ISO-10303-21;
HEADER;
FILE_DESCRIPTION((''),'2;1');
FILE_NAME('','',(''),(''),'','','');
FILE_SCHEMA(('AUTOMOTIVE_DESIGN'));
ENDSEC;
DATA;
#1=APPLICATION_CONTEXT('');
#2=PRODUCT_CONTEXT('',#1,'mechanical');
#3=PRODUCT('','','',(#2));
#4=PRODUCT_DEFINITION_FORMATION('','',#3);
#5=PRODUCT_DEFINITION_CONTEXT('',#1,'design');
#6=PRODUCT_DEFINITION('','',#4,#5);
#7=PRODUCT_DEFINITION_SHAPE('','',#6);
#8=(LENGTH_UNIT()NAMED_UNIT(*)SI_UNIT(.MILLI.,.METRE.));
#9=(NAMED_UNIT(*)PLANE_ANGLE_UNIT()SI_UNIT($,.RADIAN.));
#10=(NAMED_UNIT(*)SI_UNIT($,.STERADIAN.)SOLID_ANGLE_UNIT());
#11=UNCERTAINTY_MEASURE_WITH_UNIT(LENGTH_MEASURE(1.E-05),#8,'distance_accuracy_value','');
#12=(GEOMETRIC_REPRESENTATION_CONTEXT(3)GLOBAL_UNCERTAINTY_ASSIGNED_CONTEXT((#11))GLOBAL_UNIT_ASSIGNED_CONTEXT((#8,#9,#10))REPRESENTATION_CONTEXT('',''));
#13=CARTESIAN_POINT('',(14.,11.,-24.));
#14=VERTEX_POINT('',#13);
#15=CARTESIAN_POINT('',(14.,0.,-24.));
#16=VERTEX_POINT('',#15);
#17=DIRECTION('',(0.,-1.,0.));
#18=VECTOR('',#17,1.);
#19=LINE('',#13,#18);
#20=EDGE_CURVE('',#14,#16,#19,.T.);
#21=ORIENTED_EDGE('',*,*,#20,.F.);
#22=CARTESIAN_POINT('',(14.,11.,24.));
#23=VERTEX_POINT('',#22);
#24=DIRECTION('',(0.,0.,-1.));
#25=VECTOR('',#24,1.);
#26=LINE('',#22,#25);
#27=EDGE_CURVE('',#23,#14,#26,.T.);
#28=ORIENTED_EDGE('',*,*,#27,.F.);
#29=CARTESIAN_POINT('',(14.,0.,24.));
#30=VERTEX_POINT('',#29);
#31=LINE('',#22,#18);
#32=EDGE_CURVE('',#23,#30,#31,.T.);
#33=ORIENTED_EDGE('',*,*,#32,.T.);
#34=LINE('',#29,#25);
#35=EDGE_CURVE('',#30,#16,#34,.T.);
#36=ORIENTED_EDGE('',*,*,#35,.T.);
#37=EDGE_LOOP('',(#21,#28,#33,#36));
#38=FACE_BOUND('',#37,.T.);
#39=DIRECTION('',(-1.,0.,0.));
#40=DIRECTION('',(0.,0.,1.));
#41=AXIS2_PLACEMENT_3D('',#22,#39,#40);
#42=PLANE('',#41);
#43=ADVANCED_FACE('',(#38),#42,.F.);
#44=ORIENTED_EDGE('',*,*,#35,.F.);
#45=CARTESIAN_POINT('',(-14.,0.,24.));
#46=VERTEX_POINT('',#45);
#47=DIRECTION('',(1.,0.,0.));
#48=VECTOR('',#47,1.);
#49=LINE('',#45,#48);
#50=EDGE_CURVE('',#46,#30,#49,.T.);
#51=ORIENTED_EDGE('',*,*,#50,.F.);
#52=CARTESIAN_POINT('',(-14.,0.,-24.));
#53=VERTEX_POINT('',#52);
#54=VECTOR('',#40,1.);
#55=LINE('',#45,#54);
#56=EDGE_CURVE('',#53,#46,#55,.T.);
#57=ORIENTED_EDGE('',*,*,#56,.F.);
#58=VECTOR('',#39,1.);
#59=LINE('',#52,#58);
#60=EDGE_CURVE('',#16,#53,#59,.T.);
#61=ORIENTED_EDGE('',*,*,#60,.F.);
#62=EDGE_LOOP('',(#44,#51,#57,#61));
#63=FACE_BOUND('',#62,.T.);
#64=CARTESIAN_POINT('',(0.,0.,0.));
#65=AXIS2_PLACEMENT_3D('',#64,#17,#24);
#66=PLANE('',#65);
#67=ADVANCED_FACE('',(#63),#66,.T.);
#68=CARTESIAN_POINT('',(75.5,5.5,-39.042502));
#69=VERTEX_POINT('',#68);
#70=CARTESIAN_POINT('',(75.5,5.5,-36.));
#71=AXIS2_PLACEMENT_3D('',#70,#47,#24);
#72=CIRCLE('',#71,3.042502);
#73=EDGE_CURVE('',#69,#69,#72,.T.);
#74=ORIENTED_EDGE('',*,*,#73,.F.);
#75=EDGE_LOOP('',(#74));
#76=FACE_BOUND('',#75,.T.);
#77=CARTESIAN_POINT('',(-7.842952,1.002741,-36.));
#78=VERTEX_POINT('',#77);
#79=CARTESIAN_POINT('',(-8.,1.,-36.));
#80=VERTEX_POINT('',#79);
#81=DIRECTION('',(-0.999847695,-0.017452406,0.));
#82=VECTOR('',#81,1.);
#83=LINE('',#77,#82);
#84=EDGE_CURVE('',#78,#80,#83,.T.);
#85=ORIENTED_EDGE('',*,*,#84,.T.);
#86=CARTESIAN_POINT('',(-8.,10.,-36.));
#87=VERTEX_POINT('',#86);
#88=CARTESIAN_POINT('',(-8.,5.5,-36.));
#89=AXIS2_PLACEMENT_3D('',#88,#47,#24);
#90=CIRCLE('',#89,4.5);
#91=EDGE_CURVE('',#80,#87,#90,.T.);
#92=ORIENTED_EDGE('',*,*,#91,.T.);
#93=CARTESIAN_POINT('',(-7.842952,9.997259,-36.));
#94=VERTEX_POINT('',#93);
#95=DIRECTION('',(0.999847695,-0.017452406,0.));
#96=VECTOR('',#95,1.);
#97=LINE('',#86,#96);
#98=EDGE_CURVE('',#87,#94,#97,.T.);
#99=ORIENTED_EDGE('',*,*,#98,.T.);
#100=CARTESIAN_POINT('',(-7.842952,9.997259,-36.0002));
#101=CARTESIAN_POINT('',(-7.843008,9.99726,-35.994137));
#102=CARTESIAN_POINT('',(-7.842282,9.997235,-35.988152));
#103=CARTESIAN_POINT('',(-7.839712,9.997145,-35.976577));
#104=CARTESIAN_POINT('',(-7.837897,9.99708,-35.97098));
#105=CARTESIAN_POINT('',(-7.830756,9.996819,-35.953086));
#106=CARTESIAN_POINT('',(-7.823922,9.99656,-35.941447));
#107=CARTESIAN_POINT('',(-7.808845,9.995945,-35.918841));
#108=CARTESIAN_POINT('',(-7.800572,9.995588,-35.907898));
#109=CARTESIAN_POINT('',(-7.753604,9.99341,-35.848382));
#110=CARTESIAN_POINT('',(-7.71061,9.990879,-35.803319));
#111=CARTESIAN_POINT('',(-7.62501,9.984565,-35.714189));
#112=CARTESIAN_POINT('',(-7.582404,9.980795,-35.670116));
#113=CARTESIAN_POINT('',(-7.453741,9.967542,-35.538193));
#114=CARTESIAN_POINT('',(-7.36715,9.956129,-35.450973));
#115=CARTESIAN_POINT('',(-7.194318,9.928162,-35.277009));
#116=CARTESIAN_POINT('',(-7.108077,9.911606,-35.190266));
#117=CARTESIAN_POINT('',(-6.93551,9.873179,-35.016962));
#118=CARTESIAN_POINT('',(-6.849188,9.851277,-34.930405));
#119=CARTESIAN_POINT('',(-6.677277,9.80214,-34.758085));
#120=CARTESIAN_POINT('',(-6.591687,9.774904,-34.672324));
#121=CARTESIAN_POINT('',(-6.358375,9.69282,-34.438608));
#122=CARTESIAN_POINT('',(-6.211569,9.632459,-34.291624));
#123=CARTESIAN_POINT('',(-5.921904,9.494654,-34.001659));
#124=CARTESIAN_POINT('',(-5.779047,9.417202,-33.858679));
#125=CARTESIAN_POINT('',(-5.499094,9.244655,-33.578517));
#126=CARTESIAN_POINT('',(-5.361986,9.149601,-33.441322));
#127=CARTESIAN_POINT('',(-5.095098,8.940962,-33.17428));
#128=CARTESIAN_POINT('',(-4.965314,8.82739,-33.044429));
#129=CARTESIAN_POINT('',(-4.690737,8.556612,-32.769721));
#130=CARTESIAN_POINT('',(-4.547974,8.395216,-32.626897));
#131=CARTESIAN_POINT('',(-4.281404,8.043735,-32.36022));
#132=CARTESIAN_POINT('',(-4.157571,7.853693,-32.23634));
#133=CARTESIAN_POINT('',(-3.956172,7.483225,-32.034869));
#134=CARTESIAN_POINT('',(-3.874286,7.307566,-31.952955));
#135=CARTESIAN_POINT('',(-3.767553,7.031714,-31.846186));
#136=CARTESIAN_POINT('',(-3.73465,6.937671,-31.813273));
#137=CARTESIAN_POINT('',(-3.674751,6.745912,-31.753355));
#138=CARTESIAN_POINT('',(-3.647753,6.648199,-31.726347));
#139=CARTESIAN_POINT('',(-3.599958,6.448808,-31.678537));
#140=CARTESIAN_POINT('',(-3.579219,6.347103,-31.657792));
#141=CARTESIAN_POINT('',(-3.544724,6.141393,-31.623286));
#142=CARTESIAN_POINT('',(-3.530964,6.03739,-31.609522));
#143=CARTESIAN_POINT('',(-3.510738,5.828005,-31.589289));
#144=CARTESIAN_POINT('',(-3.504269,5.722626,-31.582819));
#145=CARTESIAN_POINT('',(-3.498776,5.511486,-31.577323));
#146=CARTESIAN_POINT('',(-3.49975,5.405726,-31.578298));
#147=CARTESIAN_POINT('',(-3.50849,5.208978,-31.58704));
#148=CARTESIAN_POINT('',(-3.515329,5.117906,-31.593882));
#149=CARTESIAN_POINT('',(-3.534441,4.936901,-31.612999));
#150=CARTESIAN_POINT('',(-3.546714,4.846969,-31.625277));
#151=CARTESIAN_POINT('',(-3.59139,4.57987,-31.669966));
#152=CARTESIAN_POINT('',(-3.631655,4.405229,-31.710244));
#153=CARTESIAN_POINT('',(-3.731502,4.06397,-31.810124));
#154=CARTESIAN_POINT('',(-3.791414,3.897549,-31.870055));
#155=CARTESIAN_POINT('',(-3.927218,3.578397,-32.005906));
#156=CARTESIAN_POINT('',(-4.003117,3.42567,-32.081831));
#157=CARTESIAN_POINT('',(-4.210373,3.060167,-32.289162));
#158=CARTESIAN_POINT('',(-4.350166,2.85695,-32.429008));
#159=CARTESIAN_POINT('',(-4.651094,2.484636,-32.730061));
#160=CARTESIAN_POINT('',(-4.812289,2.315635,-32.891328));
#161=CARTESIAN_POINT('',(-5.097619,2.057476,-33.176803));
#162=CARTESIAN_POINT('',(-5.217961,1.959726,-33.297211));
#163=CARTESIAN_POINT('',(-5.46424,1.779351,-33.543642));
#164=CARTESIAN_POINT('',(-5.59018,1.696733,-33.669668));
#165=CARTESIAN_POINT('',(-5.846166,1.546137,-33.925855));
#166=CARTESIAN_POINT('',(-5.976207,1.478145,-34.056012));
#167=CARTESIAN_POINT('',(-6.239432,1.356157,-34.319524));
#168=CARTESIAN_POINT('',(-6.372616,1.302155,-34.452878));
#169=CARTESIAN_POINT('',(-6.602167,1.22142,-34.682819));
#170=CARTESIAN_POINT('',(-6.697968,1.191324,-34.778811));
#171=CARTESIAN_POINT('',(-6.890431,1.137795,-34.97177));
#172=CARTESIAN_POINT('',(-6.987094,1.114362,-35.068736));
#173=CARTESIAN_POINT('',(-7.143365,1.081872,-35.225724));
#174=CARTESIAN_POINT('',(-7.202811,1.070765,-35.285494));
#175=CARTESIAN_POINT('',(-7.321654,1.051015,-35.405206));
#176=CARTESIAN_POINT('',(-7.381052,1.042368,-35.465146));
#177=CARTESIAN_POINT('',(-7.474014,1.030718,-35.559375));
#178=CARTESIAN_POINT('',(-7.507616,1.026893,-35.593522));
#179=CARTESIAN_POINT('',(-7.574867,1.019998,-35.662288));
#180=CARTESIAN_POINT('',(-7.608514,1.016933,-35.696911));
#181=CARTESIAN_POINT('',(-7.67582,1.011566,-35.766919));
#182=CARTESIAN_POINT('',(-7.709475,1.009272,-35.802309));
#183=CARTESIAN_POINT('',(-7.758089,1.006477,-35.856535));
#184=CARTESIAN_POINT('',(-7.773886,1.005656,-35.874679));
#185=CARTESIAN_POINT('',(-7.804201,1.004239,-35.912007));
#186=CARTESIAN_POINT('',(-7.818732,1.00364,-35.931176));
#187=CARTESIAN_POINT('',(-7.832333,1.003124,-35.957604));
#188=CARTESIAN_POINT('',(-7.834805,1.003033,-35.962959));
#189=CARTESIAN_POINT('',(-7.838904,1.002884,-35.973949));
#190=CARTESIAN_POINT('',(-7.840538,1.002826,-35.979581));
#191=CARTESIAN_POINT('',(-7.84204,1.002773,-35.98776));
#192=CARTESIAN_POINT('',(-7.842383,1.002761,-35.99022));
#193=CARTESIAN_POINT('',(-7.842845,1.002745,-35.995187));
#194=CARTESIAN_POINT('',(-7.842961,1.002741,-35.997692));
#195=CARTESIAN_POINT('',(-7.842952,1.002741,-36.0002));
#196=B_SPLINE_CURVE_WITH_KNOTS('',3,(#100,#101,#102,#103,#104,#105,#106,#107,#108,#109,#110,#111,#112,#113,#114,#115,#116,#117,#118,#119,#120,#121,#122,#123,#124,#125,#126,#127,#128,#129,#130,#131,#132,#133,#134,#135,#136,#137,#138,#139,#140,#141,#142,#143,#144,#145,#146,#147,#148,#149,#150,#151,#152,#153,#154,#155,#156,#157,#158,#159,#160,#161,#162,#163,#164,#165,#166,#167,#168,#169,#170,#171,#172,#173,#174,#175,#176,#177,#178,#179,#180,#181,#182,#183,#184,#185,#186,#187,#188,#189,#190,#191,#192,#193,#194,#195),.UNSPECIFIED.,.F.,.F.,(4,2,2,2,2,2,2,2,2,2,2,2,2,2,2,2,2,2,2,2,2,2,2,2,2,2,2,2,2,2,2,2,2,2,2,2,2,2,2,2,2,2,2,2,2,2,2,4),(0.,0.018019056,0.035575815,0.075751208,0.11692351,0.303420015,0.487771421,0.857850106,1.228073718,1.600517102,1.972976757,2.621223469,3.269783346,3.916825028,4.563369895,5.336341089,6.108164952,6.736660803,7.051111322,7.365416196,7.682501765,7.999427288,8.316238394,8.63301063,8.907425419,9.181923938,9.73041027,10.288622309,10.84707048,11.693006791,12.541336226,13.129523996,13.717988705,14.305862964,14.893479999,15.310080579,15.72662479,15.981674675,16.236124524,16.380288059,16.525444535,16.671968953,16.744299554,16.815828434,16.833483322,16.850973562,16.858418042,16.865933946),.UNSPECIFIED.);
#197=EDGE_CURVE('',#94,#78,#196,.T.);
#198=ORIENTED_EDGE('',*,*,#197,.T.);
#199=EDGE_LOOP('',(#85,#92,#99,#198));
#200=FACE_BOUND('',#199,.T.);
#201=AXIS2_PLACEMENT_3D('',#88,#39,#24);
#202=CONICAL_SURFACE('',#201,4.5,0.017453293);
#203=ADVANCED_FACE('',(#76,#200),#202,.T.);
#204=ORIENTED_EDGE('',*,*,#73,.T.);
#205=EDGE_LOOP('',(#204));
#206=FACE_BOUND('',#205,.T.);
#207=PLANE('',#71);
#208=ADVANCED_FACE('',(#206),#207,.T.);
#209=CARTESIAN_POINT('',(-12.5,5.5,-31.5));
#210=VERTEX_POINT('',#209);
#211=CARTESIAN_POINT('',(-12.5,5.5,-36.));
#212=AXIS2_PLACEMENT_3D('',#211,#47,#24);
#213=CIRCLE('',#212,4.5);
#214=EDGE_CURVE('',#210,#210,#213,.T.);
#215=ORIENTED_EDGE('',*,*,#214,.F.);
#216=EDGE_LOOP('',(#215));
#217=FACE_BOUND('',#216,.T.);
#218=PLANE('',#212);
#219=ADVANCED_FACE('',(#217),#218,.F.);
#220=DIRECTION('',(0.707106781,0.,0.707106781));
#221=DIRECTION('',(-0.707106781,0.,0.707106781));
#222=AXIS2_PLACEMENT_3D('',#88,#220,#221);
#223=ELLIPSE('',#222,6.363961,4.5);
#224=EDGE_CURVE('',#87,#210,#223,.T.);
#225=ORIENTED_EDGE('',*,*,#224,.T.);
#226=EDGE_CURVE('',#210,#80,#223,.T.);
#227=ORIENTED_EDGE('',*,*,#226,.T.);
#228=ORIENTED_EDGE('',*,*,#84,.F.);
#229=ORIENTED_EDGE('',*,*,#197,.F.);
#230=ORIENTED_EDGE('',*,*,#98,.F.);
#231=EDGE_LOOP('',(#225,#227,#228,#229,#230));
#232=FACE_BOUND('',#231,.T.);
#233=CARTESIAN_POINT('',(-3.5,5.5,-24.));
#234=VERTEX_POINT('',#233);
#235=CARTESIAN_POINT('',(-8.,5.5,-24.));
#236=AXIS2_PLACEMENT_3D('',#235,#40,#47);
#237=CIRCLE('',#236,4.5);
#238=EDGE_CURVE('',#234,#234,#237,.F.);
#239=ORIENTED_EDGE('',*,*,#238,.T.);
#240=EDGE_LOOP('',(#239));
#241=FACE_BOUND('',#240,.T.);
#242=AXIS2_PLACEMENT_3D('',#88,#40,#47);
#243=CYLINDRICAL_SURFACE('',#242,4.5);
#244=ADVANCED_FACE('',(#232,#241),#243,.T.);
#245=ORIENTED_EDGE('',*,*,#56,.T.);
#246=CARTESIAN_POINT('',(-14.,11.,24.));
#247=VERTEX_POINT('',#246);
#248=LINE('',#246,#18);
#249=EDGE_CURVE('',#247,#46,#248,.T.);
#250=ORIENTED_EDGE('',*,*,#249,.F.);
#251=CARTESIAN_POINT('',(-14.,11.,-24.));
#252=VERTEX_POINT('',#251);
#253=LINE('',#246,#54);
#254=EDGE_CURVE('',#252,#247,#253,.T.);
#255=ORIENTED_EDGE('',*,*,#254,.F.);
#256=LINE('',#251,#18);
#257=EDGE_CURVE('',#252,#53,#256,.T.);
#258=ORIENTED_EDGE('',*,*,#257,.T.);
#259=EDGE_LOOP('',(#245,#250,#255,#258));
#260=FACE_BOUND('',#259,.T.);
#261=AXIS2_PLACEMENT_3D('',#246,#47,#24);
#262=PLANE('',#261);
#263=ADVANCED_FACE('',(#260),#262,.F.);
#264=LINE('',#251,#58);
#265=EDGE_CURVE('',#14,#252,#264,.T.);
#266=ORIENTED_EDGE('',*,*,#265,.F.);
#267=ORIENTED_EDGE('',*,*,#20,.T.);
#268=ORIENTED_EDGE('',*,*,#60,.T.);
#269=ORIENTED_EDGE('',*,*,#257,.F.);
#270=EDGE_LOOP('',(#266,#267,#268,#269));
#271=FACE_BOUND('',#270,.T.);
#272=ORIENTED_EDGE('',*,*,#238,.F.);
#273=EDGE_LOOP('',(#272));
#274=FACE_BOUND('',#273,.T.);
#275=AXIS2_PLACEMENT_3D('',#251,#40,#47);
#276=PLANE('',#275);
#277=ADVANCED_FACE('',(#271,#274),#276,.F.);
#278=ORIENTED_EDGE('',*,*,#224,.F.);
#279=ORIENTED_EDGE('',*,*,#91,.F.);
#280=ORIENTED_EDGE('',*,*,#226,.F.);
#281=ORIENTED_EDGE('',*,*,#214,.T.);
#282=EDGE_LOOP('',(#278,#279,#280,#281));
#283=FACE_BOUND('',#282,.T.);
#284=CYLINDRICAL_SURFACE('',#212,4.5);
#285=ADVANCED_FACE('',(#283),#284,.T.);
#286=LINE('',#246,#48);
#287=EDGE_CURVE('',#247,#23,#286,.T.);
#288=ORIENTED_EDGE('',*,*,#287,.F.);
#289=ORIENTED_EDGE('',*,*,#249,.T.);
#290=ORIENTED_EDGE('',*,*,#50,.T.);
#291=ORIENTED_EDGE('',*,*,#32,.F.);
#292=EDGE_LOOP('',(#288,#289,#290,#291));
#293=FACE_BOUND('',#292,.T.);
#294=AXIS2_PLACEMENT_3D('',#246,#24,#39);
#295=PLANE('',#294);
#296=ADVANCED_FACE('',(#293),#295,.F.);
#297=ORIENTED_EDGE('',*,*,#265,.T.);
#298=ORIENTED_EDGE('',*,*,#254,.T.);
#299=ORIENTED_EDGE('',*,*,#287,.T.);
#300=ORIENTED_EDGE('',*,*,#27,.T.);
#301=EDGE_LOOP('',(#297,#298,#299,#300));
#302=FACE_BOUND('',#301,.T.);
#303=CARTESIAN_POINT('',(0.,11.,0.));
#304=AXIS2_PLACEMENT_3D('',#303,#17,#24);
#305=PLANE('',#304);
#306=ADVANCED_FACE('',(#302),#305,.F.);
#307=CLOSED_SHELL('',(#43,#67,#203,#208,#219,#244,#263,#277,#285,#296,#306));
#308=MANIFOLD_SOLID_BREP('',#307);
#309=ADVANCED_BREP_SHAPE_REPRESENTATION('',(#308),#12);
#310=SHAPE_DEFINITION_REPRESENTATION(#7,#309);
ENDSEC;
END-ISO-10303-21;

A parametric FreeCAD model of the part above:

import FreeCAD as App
import Part
import Sketcher
Q = App.Units.Quantity

doc = App.newDocument("Part")
body = doc.addObject("PartDesign::Body", "Body")

sketch1 = body.newObject("Sketcher::SketchObject", "Sketch")
sketch1.AttachmentSupport = (doc.getObject("XZ_Plane"), [""])
sketch1.MapMode = "FlatFace"
sketch1.addGeometry([
    Part.LineSegment(App.Vector(-14, -24, 0), App.Vector(-14, 24, 0)),
    Part.LineSegment(App.Vector(-14, 24, 0), App.Vector(14, 24, 0)),
    Part.LineSegment(App.Vector(14, 24, 0), App.Vector(14, -24, 0)),
    Part.LineSegment(App.Vector(14, -24, 0), App.Vector(-14, -24, 0)),
], False)
sketch1.addConstraint([
    Sketcher.Constraint("Coincident", 0, 2, 1, 1),
    Sketcher.Constraint("Coincident", 1, 2, 2, 1),
    Sketcher.Constraint("Coincident", 2, 2, 3, 1),
    Sketcher.Constraint("Coincident", 3, 2, 0, 1),
    Sketcher.Constraint("Vertical", 0),
    Sketcher.Constraint("Horizontal", 1),
    Sketcher.Constraint("Vertical", 2),
    Sketcher.Constraint("Horizontal", 3),
    Sketcher.Constraint("Symmetric", 0, 2, 2, 2, -1, 1),
    Sketcher.Constraint("DistanceX", 1, 1, 1, 2, Q("28 mm")),
    Sketcher.Constraint("DistanceY", 0, 1, 0, 2, Q("48 mm")),
])
pad1 = body.newObject("PartDesign::Pad", "Pad")
pad1.Profile = sketch1
pad1.Length = 11
pad1.Reversed = True

sketch2 = body.newObject("Sketcher::SketchObject", "Sketch001")
sketch2.AttachmentSupport = (doc.getObject("XY_Plane"), [""])
sketch2.MapMode = "FlatFace"
sketch2.AttachmentOffset = App.Placement(App.Vector(0, 0, -24), App.Rotation())
sketch2.addGeometry(Part.Circle(App.Vector(-8, 5.5, 0), App.Vector(0, 0, 1), 4.5), False)
sketch2.addConstraint([
    Sketcher.Constraint("Diameter", 0, Q("9 mm")),
    Sketcher.Constraint("DistanceX", 0, 3, -1, 1, Q("8 mm")),
    Sketcher.Constraint("DistanceY", -1, 1, 0, 3, Q("5.5 mm")),
])
pad2 = body.newObject("PartDesign::Pad", "Pad001")
pad2.Profile = sketch2
pad2.Length = 12
pad2.Reversed = True

sketch3 = body.newObject("Sketcher::SketchObject", "Sketch002")
sketch3.AttachmentSupport = (doc.getObject("YZ_Plane"), [""])
sketch3.MapMode = "FlatFace"
sketch3.AttachmentOffset = App.Placement(App.Vector(0, 0, -8), App.Rotation())
sketch3.addGeometry(Part.Circle(App.Vector(5.5, -36, 0), App.Vector(0, 0, 1), 4.5), False)
sketch3.addConstraint([
    Sketcher.Constraint("Diameter", 0, Q("9 mm")),
    Sketcher.Constraint("DistanceY", 0, 3, -1, 1, Q("36 mm")),
    Sketcher.Constraint("DistanceX", -1, 1, 0, 3, Q("5.5 mm")),
])
pad3 = body.newObject("PartDesign::Pad", "Pad002")
pad3.Profile = sketch3
pad3.Length = 83.5
pad3.TaperAngle = -1

sketch4 = body.newObject("Sketcher::SketchObject", "Sketch003")
sketch4.AttachmentSupport = (doc.getObject("YZ_Plane"), [""])
sketch4.MapMode = "FlatFace"
sketch4.AttachmentOffset = App.Placement(App.Vector(0, 0, -8), App.Rotation())
sketch4.addGeometry(Part.Circle(App.Vector(5.5, -36, 0), App.Vector(0, 0, 1), 4.5), False)
sketch4.addConstraint([
    Sketcher.Constraint("Diameter", 0, Q("9 mm")),
    Sketcher.Constraint("DistanceY", 0, 3, -1, 1, Q("36 mm")),
    Sketcher.Constraint("DistanceX", -1, 1, 0, 3, Q("5.5 mm")),
])
pad4 = body.newObject("PartDesign::Pad", "Pad003")
pad4.Profile = sketch4
pad4.Length = 4.5
pad4.Reversed = True

doc.recompute()
